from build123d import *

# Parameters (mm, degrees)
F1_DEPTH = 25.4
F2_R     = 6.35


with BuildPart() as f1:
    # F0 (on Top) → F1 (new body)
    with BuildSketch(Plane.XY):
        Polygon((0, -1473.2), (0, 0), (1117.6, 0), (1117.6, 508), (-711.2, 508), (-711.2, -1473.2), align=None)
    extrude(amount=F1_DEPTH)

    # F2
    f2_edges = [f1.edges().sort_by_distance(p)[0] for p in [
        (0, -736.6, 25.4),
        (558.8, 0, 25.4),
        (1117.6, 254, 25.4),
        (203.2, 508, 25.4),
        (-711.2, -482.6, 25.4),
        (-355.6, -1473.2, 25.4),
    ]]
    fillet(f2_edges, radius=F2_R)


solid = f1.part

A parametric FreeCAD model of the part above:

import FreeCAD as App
import Part
import Sketcher
from FreeCAD import Vector
Q = App.Units.Quantity


def edges_at(feature, points):
    """Names of the edges that pass closest to the given points."""
    edges = feature.Shape.Edges
    near = lambda p: min(range(len(edges)), key=lambda i: edges[i].distToShape(Part.Vertex(*p))[0])
    return sorted({f"Edge{near(p) + 1}" for p in points})

doc = App.newDocument("Part")
body = doc.addObject("PartDesign::Body", "Body")

sketch1 = body.newObject("Sketcher::SketchObject", "Sketch")
sketch1.AttachmentSupport = (doc.getObject("XY_Plane"), [""])
sketch1.MapMode = "FlatFace"
sketch1.addGeometry([
    Part.LineSegment(Vector(0, -1473.2, 0), Vector(0, 0, 0)),
    Part.LineSegment(Vector(0, 0, 0), Vector(1117.6, 0, 0)),
    Part.LineSegment(Vector(1117.6, 0, 0), Vector(1117.6, 508, 0)),
    Part.LineSegment(Vector(1117.6, 508, 0), Vector(-711.2, 508, 0)),
    Part.LineSegment(Vector(-711.2, 508, 0), Vector(-711.2, -1473.2, 0)),
    Part.LineSegment(Vector(-711.2, -1473.2, 0), Vector(0, -1473.2, 0)),
], False)
sketch1.addConstraint([
    Sketcher.Constraint("Coincident", 0, 2, 1, 1),
    Sketcher.Constraint("Coincident", 1, 2, 2, 1),
    Sketcher.Constraint("Coincident", 2, 2, 3, 1),
    Sketcher.Constraint("Coincident", 3, 2, 4, 1),
    Sketcher.Constraint("Coincident", 4, 2, 5, 1),
    Sketcher.Constraint("Coincident", 5, 2, 0, 1),
    Sketcher.Constraint("Vertical", 0),
    Sketcher.Constraint("Horizontal", 1),
    Sketcher.Constraint("Vertical", 2),
    Sketcher.Constraint("Horizontal", 3),
    Sketcher.Constraint("Vertical", 4),
    Sketcher.Constraint("Horizontal", 5),
    Sketcher.Constraint("Coincident", 0, 2, -1, 1),
    Sketcher.Constraint("DistanceX", 1, 1, 1, 2, Q("44 in")),
    Sketcher.Constraint("DistanceX", 3, 2, 3, 1, Q("72 in")),
    Sketcher.Constraint("DistanceY", 0, 1, 0, 2, Q("58 in")),
    Sketcher.Constraint("DistanceY", 2, 1, 2, 2, Q("20 in")),
])
pad1 = body.newObject("PartDesign::Pad", "Pad")
pad1.Profile = sketch1
pad1.Length = Q("1 in")
doc.recompute()

fillet = body.newObject("PartDesign::Fillet", "Fillet")
fillet.Base = (pad1, edges_at(pad1, [
    (0, -736.6, 25.4),
    (558.8, 0, 25.4),
    (1117.6, 254, 25.4),
    (203.2, 508, 25.4),
    (-711.2, -482.6, 25.4),
    (-355.6, -1473.2, 25.4),
]))
fillet.Radius = Q("0.25 in")

doc.recompute()
